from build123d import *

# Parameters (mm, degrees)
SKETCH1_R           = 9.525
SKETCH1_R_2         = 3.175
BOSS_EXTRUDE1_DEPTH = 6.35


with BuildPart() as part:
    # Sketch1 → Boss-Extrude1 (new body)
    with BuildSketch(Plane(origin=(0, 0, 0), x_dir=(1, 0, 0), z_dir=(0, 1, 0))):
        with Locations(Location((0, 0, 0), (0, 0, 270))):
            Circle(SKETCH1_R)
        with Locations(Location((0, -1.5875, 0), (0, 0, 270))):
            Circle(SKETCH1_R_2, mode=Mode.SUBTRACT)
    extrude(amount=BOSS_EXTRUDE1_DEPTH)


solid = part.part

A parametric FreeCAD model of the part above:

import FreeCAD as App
import Part
import Sketcher
from FreeCAD import Vector
Q = App.Units.Quantity

doc = App.newDocument("Part")
body = doc.addObject("PartDesign::Body", "Body")

# Sketch on XZ plane
sketch1 = body.newObject("Sketcher::SketchObject", "Sketch")
sketch1.AttachmentSupport = (doc.getObject("XZ_Plane"), [""])
sketch1.MapMode = "FlatFace"
sketch1.addGeometry([
    Part.Circle(Vector(0, 0, 0), Vector(0, 0, 1), 9.5),
    Part.Circle(Vector(0, 1.6, 0), Vector(0, 0, 1), 3.2),
], False)
sketch1.addConstraint([
    Sketcher.Constraint("Coincident", 0, 3, -1, 1),
    Sketcher.Constraint("PointOnObject", 1, 3, -2),
    Sketcher.Constraint("Diameter", 0, Q("0.75 in")),
    Sketcher.Constraint("Diameter", 1, Q("0.25 in")),
    Sketcher.Constraint("DistanceY", -1, 1, 1, 3, Q("0.0625 in")),
])
pad1 = body.newObject("PartDesign::Pad", "Pad")
pad1.Profile = sketch1
pad1.Length = Q("0.25 in")
pad1.Reversed = True

doc.recompute()
